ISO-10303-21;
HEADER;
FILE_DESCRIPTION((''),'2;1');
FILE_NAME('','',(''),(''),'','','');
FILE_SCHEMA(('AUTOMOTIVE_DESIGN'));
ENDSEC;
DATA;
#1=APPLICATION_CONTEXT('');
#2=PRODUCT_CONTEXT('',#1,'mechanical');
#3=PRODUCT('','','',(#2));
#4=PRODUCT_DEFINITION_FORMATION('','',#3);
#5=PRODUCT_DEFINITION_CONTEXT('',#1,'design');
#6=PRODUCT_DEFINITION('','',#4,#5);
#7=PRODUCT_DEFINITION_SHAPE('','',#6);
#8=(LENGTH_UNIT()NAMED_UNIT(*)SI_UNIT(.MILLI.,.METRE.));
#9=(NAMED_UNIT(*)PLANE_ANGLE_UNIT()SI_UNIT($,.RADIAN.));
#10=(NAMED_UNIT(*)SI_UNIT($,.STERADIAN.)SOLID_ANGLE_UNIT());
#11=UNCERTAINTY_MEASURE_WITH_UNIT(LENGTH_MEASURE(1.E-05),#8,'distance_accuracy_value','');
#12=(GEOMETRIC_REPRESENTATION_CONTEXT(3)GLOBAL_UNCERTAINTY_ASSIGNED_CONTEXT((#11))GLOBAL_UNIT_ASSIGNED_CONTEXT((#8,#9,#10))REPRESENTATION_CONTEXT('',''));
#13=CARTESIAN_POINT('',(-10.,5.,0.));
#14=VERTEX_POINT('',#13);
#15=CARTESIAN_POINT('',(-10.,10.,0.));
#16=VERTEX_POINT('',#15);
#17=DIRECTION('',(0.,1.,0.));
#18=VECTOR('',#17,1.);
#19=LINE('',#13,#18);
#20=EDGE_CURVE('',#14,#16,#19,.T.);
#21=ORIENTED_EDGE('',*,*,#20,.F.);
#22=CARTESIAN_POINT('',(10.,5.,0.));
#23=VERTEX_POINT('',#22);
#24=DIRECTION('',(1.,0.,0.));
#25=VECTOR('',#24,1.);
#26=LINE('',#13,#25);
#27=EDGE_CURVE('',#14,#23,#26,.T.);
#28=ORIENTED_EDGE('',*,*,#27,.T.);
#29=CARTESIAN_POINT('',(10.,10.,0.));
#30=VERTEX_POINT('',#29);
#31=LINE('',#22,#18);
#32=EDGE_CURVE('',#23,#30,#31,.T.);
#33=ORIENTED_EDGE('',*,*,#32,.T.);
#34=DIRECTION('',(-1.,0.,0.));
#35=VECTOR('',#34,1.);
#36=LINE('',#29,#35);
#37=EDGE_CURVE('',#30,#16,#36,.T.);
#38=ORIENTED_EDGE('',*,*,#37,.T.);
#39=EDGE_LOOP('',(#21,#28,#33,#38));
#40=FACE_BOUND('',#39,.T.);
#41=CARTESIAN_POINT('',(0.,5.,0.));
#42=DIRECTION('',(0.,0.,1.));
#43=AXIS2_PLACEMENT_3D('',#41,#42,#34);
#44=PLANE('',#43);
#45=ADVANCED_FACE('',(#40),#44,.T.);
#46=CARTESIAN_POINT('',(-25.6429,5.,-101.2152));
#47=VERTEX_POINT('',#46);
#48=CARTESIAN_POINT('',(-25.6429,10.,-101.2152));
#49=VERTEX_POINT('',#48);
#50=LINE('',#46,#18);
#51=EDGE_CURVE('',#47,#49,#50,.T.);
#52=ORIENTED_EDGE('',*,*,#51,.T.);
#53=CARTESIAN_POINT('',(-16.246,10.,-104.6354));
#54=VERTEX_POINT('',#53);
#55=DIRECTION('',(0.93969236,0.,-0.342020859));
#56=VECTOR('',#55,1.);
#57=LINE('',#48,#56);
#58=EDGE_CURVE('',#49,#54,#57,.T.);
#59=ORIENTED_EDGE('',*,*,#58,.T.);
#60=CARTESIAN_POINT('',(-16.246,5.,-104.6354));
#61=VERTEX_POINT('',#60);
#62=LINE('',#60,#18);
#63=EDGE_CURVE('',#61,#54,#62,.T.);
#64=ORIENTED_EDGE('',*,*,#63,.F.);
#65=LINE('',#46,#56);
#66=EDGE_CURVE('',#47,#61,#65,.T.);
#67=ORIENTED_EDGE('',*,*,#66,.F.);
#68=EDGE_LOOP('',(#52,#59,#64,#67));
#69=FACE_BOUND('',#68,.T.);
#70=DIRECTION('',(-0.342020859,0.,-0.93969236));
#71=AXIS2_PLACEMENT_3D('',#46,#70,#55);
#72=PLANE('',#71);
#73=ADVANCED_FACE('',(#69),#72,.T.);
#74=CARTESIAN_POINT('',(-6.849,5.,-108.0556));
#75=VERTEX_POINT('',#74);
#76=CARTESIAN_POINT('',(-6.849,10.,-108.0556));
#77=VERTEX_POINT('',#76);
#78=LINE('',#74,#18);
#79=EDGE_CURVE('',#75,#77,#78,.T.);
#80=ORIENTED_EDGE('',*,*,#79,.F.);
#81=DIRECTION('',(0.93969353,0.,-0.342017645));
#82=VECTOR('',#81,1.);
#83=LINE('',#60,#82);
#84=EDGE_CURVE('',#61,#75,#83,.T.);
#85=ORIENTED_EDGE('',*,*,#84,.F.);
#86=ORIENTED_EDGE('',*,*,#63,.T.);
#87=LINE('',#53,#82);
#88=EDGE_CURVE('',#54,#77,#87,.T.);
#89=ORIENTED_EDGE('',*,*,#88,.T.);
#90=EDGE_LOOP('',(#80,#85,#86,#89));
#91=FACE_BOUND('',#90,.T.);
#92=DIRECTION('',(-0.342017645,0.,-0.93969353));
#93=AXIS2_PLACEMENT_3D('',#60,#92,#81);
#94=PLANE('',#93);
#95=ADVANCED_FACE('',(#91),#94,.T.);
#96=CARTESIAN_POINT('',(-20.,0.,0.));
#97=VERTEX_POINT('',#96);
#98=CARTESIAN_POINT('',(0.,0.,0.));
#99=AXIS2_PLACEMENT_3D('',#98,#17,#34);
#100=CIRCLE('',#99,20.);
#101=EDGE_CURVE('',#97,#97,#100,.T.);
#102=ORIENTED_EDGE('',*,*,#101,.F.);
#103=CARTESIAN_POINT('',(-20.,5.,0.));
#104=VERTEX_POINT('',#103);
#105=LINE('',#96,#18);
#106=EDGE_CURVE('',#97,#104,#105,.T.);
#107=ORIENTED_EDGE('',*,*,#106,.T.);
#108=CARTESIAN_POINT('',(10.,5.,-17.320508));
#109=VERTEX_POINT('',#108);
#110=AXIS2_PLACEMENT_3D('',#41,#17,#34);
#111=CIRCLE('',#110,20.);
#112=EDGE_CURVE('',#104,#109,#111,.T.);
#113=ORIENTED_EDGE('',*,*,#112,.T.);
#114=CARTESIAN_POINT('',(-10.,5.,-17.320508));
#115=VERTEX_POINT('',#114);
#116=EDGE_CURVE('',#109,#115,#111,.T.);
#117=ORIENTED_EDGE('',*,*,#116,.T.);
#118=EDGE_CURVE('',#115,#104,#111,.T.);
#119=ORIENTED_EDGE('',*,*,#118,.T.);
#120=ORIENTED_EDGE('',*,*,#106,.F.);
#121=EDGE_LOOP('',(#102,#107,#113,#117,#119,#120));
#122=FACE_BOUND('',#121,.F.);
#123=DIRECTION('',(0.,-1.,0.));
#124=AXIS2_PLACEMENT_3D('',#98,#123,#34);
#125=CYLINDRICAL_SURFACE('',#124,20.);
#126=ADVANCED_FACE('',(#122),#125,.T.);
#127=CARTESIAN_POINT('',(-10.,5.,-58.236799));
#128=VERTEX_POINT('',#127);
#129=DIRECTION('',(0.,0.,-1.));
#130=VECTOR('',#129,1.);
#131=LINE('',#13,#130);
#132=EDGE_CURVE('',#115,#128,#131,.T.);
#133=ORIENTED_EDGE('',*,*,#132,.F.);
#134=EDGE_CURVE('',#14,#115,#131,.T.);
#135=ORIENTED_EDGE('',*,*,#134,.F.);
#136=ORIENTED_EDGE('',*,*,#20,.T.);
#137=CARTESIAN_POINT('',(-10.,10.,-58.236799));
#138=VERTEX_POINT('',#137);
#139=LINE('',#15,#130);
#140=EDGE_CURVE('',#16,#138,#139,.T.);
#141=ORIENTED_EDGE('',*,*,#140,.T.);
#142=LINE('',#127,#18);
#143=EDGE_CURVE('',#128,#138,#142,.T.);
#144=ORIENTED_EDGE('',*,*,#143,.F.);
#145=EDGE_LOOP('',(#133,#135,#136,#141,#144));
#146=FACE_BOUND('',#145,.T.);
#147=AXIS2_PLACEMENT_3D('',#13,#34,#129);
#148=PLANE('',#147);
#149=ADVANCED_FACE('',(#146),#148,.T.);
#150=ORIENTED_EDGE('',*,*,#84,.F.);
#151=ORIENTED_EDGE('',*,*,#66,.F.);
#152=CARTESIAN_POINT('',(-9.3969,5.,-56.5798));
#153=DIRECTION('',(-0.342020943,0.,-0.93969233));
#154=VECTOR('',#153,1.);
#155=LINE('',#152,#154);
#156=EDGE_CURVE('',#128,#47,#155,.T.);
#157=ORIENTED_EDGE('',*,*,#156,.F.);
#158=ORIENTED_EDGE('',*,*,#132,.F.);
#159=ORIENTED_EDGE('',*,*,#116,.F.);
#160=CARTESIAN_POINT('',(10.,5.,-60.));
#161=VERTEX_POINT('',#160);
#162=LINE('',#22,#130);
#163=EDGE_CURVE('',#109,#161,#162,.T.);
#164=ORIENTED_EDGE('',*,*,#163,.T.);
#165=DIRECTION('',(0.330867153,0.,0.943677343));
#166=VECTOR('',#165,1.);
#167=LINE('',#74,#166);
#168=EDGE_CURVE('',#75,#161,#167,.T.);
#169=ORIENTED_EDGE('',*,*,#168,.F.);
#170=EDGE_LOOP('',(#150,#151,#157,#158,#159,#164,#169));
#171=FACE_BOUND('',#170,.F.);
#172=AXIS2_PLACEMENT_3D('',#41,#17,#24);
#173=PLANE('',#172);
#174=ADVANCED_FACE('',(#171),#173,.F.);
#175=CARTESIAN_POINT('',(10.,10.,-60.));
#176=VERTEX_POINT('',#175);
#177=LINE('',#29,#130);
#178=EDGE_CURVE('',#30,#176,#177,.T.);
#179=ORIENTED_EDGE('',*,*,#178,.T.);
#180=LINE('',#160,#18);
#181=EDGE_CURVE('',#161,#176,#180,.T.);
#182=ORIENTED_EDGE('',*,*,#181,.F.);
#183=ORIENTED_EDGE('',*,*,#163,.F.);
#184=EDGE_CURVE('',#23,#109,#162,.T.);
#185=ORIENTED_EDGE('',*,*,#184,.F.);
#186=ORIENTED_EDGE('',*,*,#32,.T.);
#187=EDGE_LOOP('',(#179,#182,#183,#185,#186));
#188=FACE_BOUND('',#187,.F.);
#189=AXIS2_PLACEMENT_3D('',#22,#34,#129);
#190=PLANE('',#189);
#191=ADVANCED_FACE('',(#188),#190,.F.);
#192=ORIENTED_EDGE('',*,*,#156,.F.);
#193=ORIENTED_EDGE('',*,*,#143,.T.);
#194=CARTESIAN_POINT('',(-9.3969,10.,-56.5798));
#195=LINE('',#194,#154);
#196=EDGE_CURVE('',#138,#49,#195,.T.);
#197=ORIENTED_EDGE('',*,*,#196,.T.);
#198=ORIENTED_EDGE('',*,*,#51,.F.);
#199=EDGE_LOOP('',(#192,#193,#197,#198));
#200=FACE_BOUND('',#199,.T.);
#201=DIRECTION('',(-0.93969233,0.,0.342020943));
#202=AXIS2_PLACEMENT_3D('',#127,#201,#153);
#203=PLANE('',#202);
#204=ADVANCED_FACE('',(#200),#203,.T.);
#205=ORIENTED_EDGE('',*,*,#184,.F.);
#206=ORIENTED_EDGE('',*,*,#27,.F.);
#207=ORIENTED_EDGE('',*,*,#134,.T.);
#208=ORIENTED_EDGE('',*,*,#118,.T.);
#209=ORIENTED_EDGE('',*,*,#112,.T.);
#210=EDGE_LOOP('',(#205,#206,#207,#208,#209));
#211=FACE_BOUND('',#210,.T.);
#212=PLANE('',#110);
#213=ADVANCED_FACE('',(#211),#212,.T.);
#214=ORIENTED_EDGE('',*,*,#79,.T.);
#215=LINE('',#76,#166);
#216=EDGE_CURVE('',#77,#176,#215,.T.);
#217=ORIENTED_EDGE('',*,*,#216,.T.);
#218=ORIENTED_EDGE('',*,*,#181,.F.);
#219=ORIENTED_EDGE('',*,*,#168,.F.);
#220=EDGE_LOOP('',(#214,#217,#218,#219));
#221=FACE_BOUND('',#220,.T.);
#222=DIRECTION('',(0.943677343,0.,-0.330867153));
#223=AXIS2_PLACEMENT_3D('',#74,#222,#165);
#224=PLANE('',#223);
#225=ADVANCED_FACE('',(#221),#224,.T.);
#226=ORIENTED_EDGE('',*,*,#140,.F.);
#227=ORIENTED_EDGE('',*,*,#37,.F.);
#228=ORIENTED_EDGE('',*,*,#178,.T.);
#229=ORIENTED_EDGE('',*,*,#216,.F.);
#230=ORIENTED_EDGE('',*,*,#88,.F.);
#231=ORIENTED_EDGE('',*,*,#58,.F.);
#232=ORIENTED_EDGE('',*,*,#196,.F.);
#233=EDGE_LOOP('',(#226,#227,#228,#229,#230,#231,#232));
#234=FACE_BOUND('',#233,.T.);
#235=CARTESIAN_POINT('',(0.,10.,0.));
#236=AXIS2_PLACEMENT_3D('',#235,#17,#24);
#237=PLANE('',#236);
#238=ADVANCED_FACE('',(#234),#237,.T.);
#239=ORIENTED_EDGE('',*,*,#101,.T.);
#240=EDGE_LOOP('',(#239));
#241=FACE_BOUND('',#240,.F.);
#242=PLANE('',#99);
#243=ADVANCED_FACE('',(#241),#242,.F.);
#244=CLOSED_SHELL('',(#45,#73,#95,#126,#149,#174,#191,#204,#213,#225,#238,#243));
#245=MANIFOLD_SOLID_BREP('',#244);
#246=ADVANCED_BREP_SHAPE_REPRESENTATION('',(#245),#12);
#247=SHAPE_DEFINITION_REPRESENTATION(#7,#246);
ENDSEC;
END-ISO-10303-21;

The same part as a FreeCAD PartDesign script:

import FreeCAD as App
import Part
import Sketcher

V = App.Vector
Q = App.Units.Quantity

doc = App.newDocument("Part")
body = doc.addObject("PartDesign::Body", "Body")

# Sketch on XZ plane
sketch1 = body.newObject("Sketcher::SketchObject", "Sketch")
sketch1.AttachmentSupport = (doc.getObject("XZ_Plane"), [""])
sketch1.MapMode = "FlatFace"
sketch1.addGeometry(Part.Circle(V(0, 0, 0), V(0, 0, 1), 20), False)
sketch1.addConstraint([
    Sketcher.Constraint("Coincident", 0, 3, -1, 1),
    Sketcher.Constraint("Diameter", 0, Q("40 mm")),
])
pad1 = body.newObject("PartDesign::Pad", "Pad")
pad1.Profile = sketch1
pad1.Length = 5
pad1.Reversed = True

# Sketch on XZ plane
sketch2 = body.newObject("Sketcher::SketchObject", "Sketch001")
sketch2.AttachmentSupport = (doc.getObject("XZ_Plane"), [""])
sketch2.MapMode = "FlatFace"
sketch2.AttachmentOffset = App.Placement(V(0, 0, -5), App.Rotation())
sketch2.addGeometry([
    Part.LineSegment(V(-10, 0, 0), V(10, 0, 0)),  # 0
    Part.LineSegment(V(10, 0, 0), V(10, -60, 0)),  # 1
    Part.LineSegment(V(10, -60, 0), V(-6.849, -108.0556, 0)),  # 2
    Part.LineSegment(V(-6.849, -108.0556, 0), V(-16.246, -104.6354, 0)),  # 3
    Part.LineSegment(V(-16.246, -104.6354, 0), V(-25.6429, -101.2152, 0)),  # 4
    Part.LineSegment(V(-25.6429, -101.2152, 0), V(-10, -58.236799, 0)),  # 5
    Part.LineSegment(V(-10, -58.236799, 0), V(-10, 0, 0)),  # 6
], False)
sketch2.addConstraint([
    Sketcher.Constraint("Coincident", 0, 2, 1, 1),
    Sketcher.Constraint("Coincident", 1, 2, 2, 1),
    Sketcher.Constraint("Coincident", 2, 2, 3, 1),
    Sketcher.Constraint("Coincident", 3, 2, 4, 1),
    Sketcher.Constraint("Coincident", 4, 2, 5, 1),
    Sketcher.Constraint("Coincident", 5, 2, 6, 1),
    Sketcher.Constraint("Coincident", 6, 2, 0, 1),
    Sketcher.Constraint("Horizontal", 0),
    Sketcher.Constraint("Vertical", 1),
    Sketcher.Constraint("Vertical", 6),
    Sketcher.Constraint("Symmetric", 0, 2, 6, 2, -1, 1),
    Sketcher.Constraint("Parallel", 3, 4),
    Sketcher.Constraint("Perpendicular", 4, 5),
    Sketcher.Constraint("Equal", 3, 4),
    Sketcher.Constraint("DistanceY", 1, 2, 1, 1, Q("60 mm")),
    Sketcher.Constraint("Angle", 3, Q("160.0002 deg")),
    Sketcher.Constraint("Distance", 3, Q("10 mm")),
    Sketcher.Constraint("DistanceX", -1, 1, 0, 2, Q("10 mm")),
    Sketcher.Constraint("DistanceY", 6, 1, 6, 2, Q("58.2368 mm")),
    Sketcher.Constraint("DistanceX", 2, 2, -1, 1, Q("6.849 mm")),
])
pad2 = body.newObject("PartDesign::Pad", "Pad001")
pad2.Profile = sketch2
pad2.Length = 5
pad2.Reversed = True

doc.recompute()
